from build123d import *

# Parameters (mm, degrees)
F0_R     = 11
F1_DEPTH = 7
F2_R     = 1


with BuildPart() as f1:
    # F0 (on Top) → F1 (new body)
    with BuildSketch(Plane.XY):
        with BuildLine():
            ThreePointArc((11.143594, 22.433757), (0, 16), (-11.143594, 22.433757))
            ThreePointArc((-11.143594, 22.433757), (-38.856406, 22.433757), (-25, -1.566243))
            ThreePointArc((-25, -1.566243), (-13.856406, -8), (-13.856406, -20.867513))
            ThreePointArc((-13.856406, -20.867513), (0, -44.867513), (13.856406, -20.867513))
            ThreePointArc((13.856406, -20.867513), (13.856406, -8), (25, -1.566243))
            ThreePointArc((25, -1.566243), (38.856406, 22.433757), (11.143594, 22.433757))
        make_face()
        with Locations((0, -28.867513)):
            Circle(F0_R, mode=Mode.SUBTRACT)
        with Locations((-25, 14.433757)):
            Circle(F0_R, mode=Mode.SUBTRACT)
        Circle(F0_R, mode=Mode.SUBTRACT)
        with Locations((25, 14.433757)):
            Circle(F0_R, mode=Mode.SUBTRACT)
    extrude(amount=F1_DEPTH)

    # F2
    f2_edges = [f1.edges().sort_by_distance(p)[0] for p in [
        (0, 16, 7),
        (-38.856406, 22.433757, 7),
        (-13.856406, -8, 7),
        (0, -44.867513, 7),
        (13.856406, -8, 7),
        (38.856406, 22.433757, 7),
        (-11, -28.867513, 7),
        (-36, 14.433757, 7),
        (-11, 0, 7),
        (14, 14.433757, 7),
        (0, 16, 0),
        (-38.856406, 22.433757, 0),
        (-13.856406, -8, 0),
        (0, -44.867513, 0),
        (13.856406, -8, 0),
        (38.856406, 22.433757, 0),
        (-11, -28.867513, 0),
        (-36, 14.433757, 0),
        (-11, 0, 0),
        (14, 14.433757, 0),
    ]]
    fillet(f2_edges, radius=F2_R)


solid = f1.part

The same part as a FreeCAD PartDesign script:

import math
import FreeCAD as App
import Part
import Sketcher

V = App.Vector
Q = App.Units.Quantity


def edges_at(feature, points):
    """Names of the edges that pass closest to the given points."""
    edges = feature.Shape.Edges
    near = lambda p: min(range(len(edges)), key=lambda i: edges[i].distToShape(Part.Vertex(*p))[0])
    return sorted({f"Edge{near(p) + 1}" for p in points})

doc = App.newDocument("Part")
body = doc.addObject("PartDesign::Body", "Body")

sketch1 = body.newObject("Sketcher::SketchObject", "Sketch")
sketch1.AttachmentSupport = (doc.getObject("XY_Plane"), [""])
sketch1.MapMode = "FlatFace"
sketch1.addGeometry(Part.ArcOfCircle(Part.Circle(V(0, 28.867514, 0), V(0, 0, 1), 12.867514), math.radians(-150), math.radians(-30)), False)
sketch1.addGeometry(Part.ArcOfCircle(Part.Circle(V(-25, 14.433757, 0), V(0, 0, 1), 16), math.radians(30.000002), math.radians(270)), False)
sketch1.addGeometry(Part.ArcOfCircle(Part.Circle(V(-25, -14.433756, 0), V(0, 0, 1), 12.867513), math.radians(-29.999999), math.radians(90.000001)), False)
sketch1.addGeometry(Part.ArcOfCircle(Part.Circle(V(0, -28.867513, 0), V(0, 0, 1), 16), math.radians(149.999998), math.radians(390.000002)), False)
sketch1.addGeometry(Part.ArcOfCircle(Part.Circle(V(25, -14.433756, 0), V(0, 0, 1), 12.867513), math.radians(89.999999), math.radians(209.999999)), False)
sketch1.addGeometry(Part.ArcOfCircle(Part.Circle(V(25, 14.433757, 0), V(0, 0, 1), 16), math.radians(-90), math.radians(149.999998)), False)
sketch1.addGeometry(Part.Circle(V(0, -28.867513, 0), V(0, 0, 1), 11), False)
sketch1.addGeometry(Part.Circle(V(-25, 14.433757, 0), V(0, 0, 1), 11), False)
sketch1.addGeometry(Part.Circle(V(0, 0, 0), V(0, 0, 1), 11), False)
sketch1.addGeometry(Part.Circle(V(25, 14.433757, 0), V(0, 0, 1), 11), False)
sketch1.addConstraint(Sketcher.Constraint("Tangent", 0, 1, 1, 1))
sketch1.addConstraint(Sketcher.Constraint("Tangent", 1, 2, 2, 2))
sketch1.addConstraint(Sketcher.Constraint("Tangent", 2, 1, 3, 1))
sketch1.addConstraint(Sketcher.Constraint("Tangent", 3, 2, 4, 2))
sketch1.addConstraint(Sketcher.Constraint("Tangent", 4, 1, 5, 1))
sketch1.addConstraint(Sketcher.Constraint("Tangent", 5, 2, 0, 2))
sketch1.addConstraint(Sketcher.Constraint("Coincident", 8, 3, -1, 1))
sketch1.addConstraint(Sketcher.Constraint("Coincident", 6, 3, 3, 3))
sketch1.addConstraint(Sketcher.Constraint("Coincident", 7, 3, 1, 3))
sketch1.addConstraint(Sketcher.Constraint("Coincident", 9, 3, 5, 3))
sketch1.addConstraint(Sketcher.Constraint("Equal", 0, 2))
sketch1.addConstraint(Sketcher.Constraint("Equal", 1, 3))
sketch1.addConstraint(Sketcher.Constraint("Equal", 2, 4))
sketch1.addConstraint(Sketcher.Constraint("Equal", 3, 5))
sketch1.addConstraint(Sketcher.Constraint("Equal", 6, 7))
sketch1.addConstraint(Sketcher.Constraint("Equal", 7, 8))
sketch1.addConstraint(Sketcher.Constraint("Equal", 8, 9))
sketch1.addConstraint(Sketcher.Constraint("Symmetric", 0, 3, 3, 3, -1, 1))
sketch1.addConstraint(Sketcher.Constraint("Symmetric", 2, 3, 4, 3, -2))
sketch1.addConstraint(Sketcher.Constraint("Vertical", 1, 3, 2, 3))
sketch1.addConstraint(Sketcher.Constraint("Diameter", 6, Q("22 mm")))
sketch1.addConstraint(Sketcher.Constraint("Radius", 1, Q("16 mm")))
sketch1.addConstraint(Sketcher.Constraint("DistanceX", 1, 3, -1, 1, Q("25 mm")))
sketch1.addConstraint(Sketcher.Constraint("DistanceY", 7, 3, 0, 1, Q("8 mm")))
pad1 = body.newObject("PartDesign::Pad", "Pad")
pad1.Profile = sketch1
pad1.Length = 7
doc.recompute()

fillet = body.newObject("PartDesign::Fillet", "Fillet")
fillet.Base = (pad1, edges_at(pad1, [
    (0, 16, 7),
    (-38.856, 22.434, 7),
    (-13.856, -8, 7),
    (0, -44.868, 7),
    (13.856, -8, 7),
    (38.856, 22.434, 7),
    (-11, -28.868, 7),
    (-36, 14.434, 7),
    (-11, 0, 7),
    (14, 14.434, 7),
    (0, 16, 0),
    (-38.856, 22.434, 0),
    (-13.856, -8, 0),
    (0, -44.868, 0),
    (13.856, -8, 0),
    (38.856, 22.434, 0),
    (-11, -28.868, 0),
    (-36, 14.434, 0),
    (-11, 0, 0),
    (14, 14.434, 0),
]))
fillet.Radius = 1

doc.recompute()
